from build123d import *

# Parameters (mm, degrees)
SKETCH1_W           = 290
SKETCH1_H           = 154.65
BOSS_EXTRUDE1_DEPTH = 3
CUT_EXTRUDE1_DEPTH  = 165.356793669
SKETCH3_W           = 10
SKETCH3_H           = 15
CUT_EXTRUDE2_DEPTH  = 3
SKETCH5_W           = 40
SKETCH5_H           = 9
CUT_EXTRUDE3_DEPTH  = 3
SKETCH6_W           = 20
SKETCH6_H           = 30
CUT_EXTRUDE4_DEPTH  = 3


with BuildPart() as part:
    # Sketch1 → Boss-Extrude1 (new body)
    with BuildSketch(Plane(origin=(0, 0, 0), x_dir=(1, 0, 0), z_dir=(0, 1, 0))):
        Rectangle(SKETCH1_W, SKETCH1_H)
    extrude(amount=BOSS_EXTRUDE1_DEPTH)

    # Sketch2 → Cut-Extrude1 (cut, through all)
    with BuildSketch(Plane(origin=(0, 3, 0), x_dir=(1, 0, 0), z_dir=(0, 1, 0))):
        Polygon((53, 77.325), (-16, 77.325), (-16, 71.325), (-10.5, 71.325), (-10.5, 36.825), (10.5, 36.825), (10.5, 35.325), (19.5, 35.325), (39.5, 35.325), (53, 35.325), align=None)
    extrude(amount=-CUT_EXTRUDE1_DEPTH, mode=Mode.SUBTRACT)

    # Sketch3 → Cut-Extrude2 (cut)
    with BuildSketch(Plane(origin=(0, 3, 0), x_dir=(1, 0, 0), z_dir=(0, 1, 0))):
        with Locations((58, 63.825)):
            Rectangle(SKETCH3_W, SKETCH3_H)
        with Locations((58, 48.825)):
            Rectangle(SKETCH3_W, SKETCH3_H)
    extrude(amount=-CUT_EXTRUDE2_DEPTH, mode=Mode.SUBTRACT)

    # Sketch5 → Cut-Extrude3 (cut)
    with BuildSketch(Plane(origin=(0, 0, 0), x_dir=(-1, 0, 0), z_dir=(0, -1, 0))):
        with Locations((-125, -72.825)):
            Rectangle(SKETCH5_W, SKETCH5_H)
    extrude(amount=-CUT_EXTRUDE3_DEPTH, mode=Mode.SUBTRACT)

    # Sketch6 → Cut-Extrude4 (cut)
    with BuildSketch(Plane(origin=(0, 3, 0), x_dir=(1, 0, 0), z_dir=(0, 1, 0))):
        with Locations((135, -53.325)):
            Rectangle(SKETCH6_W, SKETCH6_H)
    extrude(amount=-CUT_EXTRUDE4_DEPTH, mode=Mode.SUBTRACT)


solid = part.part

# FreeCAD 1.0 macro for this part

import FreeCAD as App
import Part
import Sketcher
from FreeCAD import Vector


def add_polygon(sketch, points):
    """Adds a closed chain of lines whose ends are joined by coincident constraints."""
    first, n = sketch.GeometryCount, len(points)
    for a, b in zip(points, points[1:] + points[:1]):
        sketch.addGeometry(Part.LineSegment(App.Vector(*a, 0), App.Vector(*b, 0)), False)
    for i in range(n):
        sketch.addConstraint(Sketcher.Constraint("Coincident", first + i, 2, first + (i + 1) % n, 1))

doc = App.newDocument("Part")
body = doc.addObject("PartDesign::Body", "Body")

sketch1 = body.newObject("Sketcher::SketchObject", "Sketch")
sketch1.AttachmentSupport = (doc.getObject("XZ_Plane"), [""])
sketch1.MapMode = "FlatFace"
add_polygon(sketch1, [(-145, -77), (-145, 77), (145, 77), (145, -77)])
sketch1.addConstraint([
    Sketcher.Constraint("Vertical", 0),
    Sketcher.Constraint("Horizontal", 1),
    Sketcher.Constraint("Vertical", 2),
    Sketcher.Constraint("Horizontal", 3),
    Sketcher.Constraint("Symmetric", 0, 2, 2, 2, -1, 1),
    Sketcher.Constraint("DistanceX", 1, 1, 1, 2, 290.0),
    Sketcher.Constraint("DistanceY", 0, 1, 0, 2, 154.65),
])
pad1 = body.newObject("PartDesign::Pad", "Pad")
pad1.Profile = sketch1
pad1.Length = 3
pad1.Reversed = True

sketch2 = body.newObject("Sketcher::SketchObject", "Sketch001")
sketch2.AttachmentSupport = (doc.getObject("XZ_Plane"), [""])
sketch2.MapMode = "FlatFace"
sketch2.AttachmentOffset = App.Placement(Vector(0, 0, -3), App.Rotation())
add_polygon(sketch2, [(53, -77.3), (-16, -77.3), (-16, -71.3), (-10.5, -71.3), (-10.5, -36.8), (10.5, -36.8), (10.5, -35.3), (53, -35.3)])
sketch2.addConstraint([
    Sketcher.Constraint("Horizontal", 0),
    Sketcher.Constraint("Vertical", 1),
    Sketcher.Constraint("Horizontal", 2),
    Sketcher.Constraint("Vertical", 3),
    Sketcher.Constraint("Horizontal", 4),
    Sketcher.Constraint("Vertical", 5),
    Sketcher.Constraint("Horizontal", 6),
    Sketcher.Constraint("Vertical", 7),
    Sketcher.Constraint("DistanceX", 0, 2, 0, 1, 69.0),
    Sketcher.Constraint("DistanceX", 4, 1, 4, 2, 21.0),
    Sketcher.Constraint("DistanceY", 1, 1, 1, 2, 6.0),
    Sketcher.Constraint("DistanceY", 7, 2, 7, 1, 42.0),
    Sketcher.Constraint("DistanceX", 2, 1, 2, 2, 5.5),
    Sketcher.Constraint("DistanceY", 3, 1, 3, 2, 34.5),
    Sketcher.Constraint("DistanceX", 0, 2, -1, 1, 16.0),
    Sketcher.Constraint("DistanceY", 0, 2, -1, 1, 77.325),
])
pocket1 = body.newObject("PartDesign::Pocket", "Pocket")
pocket1.Profile = sketch2
pocket1.Type = "ThroughAll"
pocket1.Reversed = True

sketch3 = body.newObject("Sketcher::SketchObject", "Sketch002")
sketch3.AttachmentSupport = (doc.getObject("XZ_Plane"), [""])
sketch3.MapMode = "FlatFace"
sketch3.AttachmentOffset = App.Placement(Vector(0, 0, -3), App.Rotation())
add_polygon(sketch3, [(53, -71), (53, -41), (63, -41), (63, -71)])
sketch3.addConstraint([
    Sketcher.Constraint("Vertical", 0),
    Sketcher.Constraint("Horizontal", 1),
    Sketcher.Constraint("Vertical", 2),
    Sketcher.Constraint("Horizontal", 3),
    Sketcher.Constraint("DistanceX", 1, 1, 1, 2, 10.0),
    Sketcher.Constraint("DistanceY", 0, 1, 0, 2, 30.0),
    Sketcher.Constraint("DistanceX", -1, 1, 0, 2, 53.0),
    Sketcher.Constraint("DistanceY", 0, 2, -1, 1, 41.325),
])
pocket2 = body.newObject("PartDesign::Pocket", "Pocket001")
pocket2.Profile = sketch3
pocket2.Length = 3
pocket2.Reversed = True

sketch4 = body.newObject("Sketcher::SketchObject", "Sketch003")
sketch4.AttachmentSupport = (doc.getObject("XZ_Plane"), [""])
sketch4.MapMode = "FlatFace"
add_polygon(sketch4, [(145, 68), (145, 77), (105, 77), (105, 68)])
sketch4.addConstraint([
    Sketcher.Constraint("Vertical", 0),
    Sketcher.Constraint("Horizontal", 1),
    Sketcher.Constraint("Vertical", 2),
    Sketcher.Constraint("Horizontal", 3),
    Sketcher.Constraint("DistanceX", 1, 2, 1, 1, 40.0),
    Sketcher.Constraint("DistanceY", 0, 1, 0, 2, 9.0),
    Sketcher.Constraint("DistanceX", -1, 1, 0, 2, 145.0),
    Sketcher.Constraint("DistanceY", -1, 1, 0, 2, 77.325),
])
pocket3 = body.newObject("PartDesign::Pocket", "Pocket002")
pocket3.Profile = sketch4
pocket3.Length = 3

sketch5 = body.newObject("Sketcher::SketchObject", "Sketch004")
sketch5.AttachmentSupport = (doc.getObject("XZ_Plane"), [""])
sketch5.MapMode = "FlatFace"
sketch5.AttachmentOffset = App.Placement(Vector(0, 0, -3), App.Rotation())
add_polygon(sketch5, [(125, 38), (125, 68), (145, 68), (145, 38)])
sketch5.addConstraint([
    Sketcher.Constraint("Vertical", 0),
    Sketcher.Constraint("Horizontal", 1),
    Sketcher.Constraint("Vertical", 2),
    Sketcher.Constraint("Horizontal", 3),
    Sketcher.Constraint("DistanceX", 1, 1, 1, 2, 20.0),
    Sketcher.Constraint("DistanceY", 0, 1, 0, 2, 30.0),
    Sketcher.Constraint("DistanceX", -1, 1, 0, 2, 125.0),
    Sketcher.Constraint("DistanceY", -1, 1, 0, 2, 68.325),
])
pocket4 = body.newObject("PartDesign::Pocket", "Pocket003")
pocket4.Profile = sketch5
pocket4.Length = 3
pocket4.Reversed = True

doc.recompute()
